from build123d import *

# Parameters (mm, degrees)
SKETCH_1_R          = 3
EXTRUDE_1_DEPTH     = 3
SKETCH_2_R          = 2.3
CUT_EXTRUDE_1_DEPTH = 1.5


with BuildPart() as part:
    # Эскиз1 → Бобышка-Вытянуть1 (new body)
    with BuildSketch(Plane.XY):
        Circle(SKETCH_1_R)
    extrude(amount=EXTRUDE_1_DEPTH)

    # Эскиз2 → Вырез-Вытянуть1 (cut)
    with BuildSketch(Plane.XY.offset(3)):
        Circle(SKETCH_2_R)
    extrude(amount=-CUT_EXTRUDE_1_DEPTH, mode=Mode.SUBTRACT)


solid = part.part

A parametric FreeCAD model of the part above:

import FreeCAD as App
import Part
import Sketcher
from FreeCAD import Vector
Q = App.Units.Quantity

doc = App.newDocument("Part")
body = doc.addObject("PartDesign::Body", "Body")

# Sketch on XY plane
sketch1 = body.newObject("Sketcher::SketchObject", "Sketch")
sketch1.AttachmentSupport = (doc.getObject("XY_Plane"), [""])
sketch1.MapMode = "FlatFace"
sketch1.addGeometry(Part.Circle(Vector(0, 0, 0), Vector(0, 0, 1), 3), False)
sketch1.addConstraint([
    Sketcher.Constraint("Coincident", 0, 3, -1, 1),
    Sketcher.Constraint("Diameter", 0, Q("6 mm")),
])
pad1 = body.newObject("PartDesign::Pad", "Pad")
pad1.Profile = sketch1
pad1.Length = 3

# Sketch on XY plane
sketch2 = body.newObject("Sketcher::SketchObject", "Sketch001")
sketch2.AttachmentSupport = (doc.getObject("XY_Plane"), [""])
sketch2.MapMode = "FlatFace"
sketch2.AttachmentOffset = App.Placement(Vector(0, 0, 3), App.Rotation())
sketch2.addGeometry(Part.Circle(Vector(0, 0, 0), Vector(0, 0, 1), 2.3), False)
sketch2.addConstraint([
    Sketcher.Constraint("Coincident", 0, 3, -1, 1),
    Sketcher.Constraint("Diameter", 0, Q("4.6 mm")),
])
pocket1 = body.newObject("PartDesign::Pocket", "Pocket")
pocket1.Profile = sketch2
pocket1.Length = 1.5

doc.recompute()
